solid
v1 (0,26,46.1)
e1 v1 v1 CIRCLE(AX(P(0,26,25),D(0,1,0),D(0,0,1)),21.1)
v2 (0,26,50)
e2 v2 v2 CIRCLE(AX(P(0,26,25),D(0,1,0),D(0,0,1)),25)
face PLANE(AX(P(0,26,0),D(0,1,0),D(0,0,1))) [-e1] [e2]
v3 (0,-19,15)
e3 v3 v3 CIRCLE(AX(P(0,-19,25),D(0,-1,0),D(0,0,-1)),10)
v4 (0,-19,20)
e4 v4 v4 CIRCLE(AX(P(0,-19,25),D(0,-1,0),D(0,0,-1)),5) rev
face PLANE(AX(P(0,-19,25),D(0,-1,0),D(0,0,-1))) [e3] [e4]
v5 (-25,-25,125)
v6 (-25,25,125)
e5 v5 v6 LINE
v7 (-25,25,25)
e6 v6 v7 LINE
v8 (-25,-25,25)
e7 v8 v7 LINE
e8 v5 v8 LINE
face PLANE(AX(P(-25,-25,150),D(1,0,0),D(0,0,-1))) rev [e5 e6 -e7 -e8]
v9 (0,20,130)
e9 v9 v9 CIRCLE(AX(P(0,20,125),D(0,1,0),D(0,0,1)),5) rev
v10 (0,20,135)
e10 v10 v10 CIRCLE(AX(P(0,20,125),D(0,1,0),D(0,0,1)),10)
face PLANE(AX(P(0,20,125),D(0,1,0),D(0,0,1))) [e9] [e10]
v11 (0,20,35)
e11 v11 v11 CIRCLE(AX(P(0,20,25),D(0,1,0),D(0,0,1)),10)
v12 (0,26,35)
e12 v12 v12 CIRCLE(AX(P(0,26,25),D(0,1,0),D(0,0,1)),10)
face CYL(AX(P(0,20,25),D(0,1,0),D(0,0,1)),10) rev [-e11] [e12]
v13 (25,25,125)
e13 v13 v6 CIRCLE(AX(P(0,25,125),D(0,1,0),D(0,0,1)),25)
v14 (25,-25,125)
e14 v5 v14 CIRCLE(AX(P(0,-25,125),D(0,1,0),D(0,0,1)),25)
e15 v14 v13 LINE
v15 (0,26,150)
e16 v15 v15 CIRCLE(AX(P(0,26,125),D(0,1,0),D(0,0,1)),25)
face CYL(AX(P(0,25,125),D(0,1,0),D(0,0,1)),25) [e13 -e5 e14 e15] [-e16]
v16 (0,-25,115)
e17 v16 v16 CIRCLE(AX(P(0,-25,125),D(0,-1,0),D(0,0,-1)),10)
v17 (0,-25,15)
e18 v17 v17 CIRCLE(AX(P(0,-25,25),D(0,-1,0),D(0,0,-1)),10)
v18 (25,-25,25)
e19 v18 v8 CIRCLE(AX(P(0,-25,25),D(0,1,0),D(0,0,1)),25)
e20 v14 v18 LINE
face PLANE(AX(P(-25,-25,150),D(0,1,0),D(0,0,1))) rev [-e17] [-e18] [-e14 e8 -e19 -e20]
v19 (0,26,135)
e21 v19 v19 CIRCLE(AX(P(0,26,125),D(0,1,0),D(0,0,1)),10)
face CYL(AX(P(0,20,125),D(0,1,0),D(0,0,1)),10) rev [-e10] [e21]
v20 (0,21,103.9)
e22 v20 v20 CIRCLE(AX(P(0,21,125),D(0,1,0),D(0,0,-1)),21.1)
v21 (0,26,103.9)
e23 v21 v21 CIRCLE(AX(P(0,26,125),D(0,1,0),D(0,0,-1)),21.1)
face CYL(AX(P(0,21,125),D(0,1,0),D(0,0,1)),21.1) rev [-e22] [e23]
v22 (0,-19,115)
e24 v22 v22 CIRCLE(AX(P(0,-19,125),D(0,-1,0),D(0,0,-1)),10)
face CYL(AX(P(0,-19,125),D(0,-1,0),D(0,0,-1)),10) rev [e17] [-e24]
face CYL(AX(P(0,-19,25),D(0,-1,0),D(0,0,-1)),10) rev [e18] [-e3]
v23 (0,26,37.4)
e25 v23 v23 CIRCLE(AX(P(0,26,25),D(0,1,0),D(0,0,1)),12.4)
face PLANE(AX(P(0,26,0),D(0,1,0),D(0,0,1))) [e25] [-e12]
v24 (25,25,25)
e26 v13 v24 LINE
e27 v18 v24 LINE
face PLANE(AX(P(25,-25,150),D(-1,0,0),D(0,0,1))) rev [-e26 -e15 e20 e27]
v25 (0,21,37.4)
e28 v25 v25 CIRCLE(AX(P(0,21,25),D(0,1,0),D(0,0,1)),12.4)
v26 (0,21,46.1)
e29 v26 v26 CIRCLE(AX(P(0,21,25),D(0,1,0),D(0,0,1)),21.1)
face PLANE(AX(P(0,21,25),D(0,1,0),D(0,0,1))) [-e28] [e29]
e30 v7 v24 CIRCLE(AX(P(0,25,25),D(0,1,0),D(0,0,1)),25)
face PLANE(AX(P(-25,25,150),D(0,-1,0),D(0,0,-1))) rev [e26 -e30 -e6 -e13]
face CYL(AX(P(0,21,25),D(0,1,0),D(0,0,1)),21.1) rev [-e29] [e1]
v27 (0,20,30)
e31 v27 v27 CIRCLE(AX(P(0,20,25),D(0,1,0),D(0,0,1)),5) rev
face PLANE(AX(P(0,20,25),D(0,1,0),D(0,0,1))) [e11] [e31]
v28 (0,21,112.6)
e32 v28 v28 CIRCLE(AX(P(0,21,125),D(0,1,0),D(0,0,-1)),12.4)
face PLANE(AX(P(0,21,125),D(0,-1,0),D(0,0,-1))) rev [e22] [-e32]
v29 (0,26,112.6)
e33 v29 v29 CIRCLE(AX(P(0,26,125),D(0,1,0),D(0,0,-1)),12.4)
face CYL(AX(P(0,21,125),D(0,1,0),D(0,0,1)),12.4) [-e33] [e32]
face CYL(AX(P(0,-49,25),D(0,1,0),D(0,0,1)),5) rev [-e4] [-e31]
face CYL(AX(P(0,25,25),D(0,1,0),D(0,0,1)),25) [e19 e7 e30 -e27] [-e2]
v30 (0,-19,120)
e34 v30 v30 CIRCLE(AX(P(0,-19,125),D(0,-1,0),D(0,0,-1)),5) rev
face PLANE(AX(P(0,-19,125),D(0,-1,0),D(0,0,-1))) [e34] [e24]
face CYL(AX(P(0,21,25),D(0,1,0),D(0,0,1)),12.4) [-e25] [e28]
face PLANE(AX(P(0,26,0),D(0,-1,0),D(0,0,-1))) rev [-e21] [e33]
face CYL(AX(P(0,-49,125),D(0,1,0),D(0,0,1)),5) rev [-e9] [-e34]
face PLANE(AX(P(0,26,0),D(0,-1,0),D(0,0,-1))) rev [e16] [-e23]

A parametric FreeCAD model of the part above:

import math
import FreeCAD as App
import Part
import Sketcher
from FreeCAD import Vector
Q = App.Units.Quantity


def add_polygon(sketch, points):
    """Adds a closed chain of lines whose ends are joined by coincident constraints."""
    first, n = sketch.GeometryCount, len(points)
    for a, b in zip(points, points[1:] + points[:1]):
        sketch.addGeometry(Part.LineSegment(App.Vector(*a, 0), App.Vector(*b, 0)), False)
    for i in range(n):
        sketch.addConstraint(Sketcher.Constraint("Coincident", first + i, 2, first + (i + 1) % n, 1))

doc = App.newDocument("Part")
body = doc.addObject("PartDesign::Body", "Body")

sketch1 = body.newObject("Sketcher::SketchObject", "Sketch")
sketch1.AttachmentSupport = (doc.getObject("XY_Plane"), [""])
sketch1.MapMode = "FlatFace"
add_polygon(sketch1, [(-25, 25), (-25, -25), (25, -25), (25, 25)])
sketch1.addConstraint(Sketcher.Constraint("Vertical", 0))
sketch1.addConstraint(Sketcher.Constraint("Horizontal", 1))
sketch1.addConstraint(Sketcher.Constraint("Vertical", 2))
sketch1.addConstraint(Sketcher.Constraint("Horizontal", 3))
sketch1.addConstraint(Sketcher.Constraint("Symmetric", 0, 2, 2, 2, -1, 1))
sketch1.addConstraint(Sketcher.Constraint("Equal", 3, 0))
sketch1.addConstraint(Sketcher.Constraint("DistanceX", 1, 1, 1, 2, Q("50 mm")))
pad1 = body.newObject("PartDesign::Pad", "Pad")
pad1.Profile = sketch1
pad1.Length = 150

sketch2 = body.newObject("Sketcher::SketchObject", "Sketch001")
sketch2.AttachmentSupport = (doc.getObject("XZ_Plane"), [""])
sketch2.MapMode = "FlatFace"
sketch2.AttachmentOffset = App.Placement(Vector(0, 0, -25), App.Rotation())
add_polygon(sketch2, [(-25, 100), (-25, 150), (25, 150), (25, 100)])
add_polygon(sketch2, [(-25, 0), (-25, 50), (25, 50), (25, 0)])
sketch2.addConstraint(Sketcher.Constraint("Vertical", 0))
sketch2.addConstraint(Sketcher.Constraint("Horizontal", 1))
sketch2.addConstraint(Sketcher.Constraint("Vertical", 2))
sketch2.addConstraint(Sketcher.Constraint("Horizontal", 3))
sketch2.addConstraint(Sketcher.Constraint("Vertical", 4))
sketch2.addConstraint(Sketcher.Constraint("Horizontal", 5))
sketch2.addConstraint(Sketcher.Constraint("Vertical", 6))
sketch2.addConstraint(Sketcher.Constraint("Horizontal", 7))
sketch2.addConstraint(Sketcher.Constraint("Symmetric", 6, 2, 7, 2, -1, 1))
sketch2.addConstraint(Sketcher.Constraint("Vertical", 3, 2, 4, 2))
sketch2.addConstraint(Sketcher.Constraint("Vertical", 2, 2, 5, 2))
sketch2.addConstraint(Sketcher.Constraint("Equal", 7, 0))
sketch2.addConstraint(Sketcher.Constraint("Equal", 2, 4))
sketch2.addConstraint(Sketcher.Constraint("DistanceX", 1, 1, 1, 2, Q("50 mm")))
sketch2.addConstraint(Sketcher.Constraint("DistanceY", -1, 1, 0, 2, Q("150 mm")))
pad2 = body.newObject("PartDesign::Pad", "Pad001")
pad2.Profile = sketch2
pad2.Length = 1
pad2.Reversed = True

sketch3 = body.newObject("Sketcher::SketchObject", "Sketch002")
sketch3.AttachmentSupport = (doc.getObject("XZ_Plane"), [""])
sketch3.MapMode = "FlatFace"
sketch3.AttachmentOffset = App.Placement(Vector(0, 0, -26), App.Rotation())
sketch3.addGeometry(Part.LineSegment(Vector(0, 0, 0), Vector(-25, 0, 0)), False)
sketch3.addGeometry(Part.LineSegment(Vector(-25, 0, 0), Vector(-25, 25, 0)), False)
sketch3.addGeometry(Part.ArcOfCircle(Part.Circle(Vector(0, 25, 0), Vector(0, 0, 1), 25), math.radians(180), math.radians(270)), False)
sketch3.addGeometry(Part.LineSegment(Vector(25, 0, 0), Vector(0, 0, 0)), False)
sketch3.addGeometry(Part.ArcOfCircle(Part.Circle(Vector(0, 25, 0), Vector(0, 0, 1), 25), math.radians(-90), math.radians(0)), False)
sketch3.addGeometry(Part.LineSegment(Vector(25, 25, 0), Vector(25, 0, 0)), False)
sketch3.addGeometry(Part.LineSegment(Vector(25, 150, 0), Vector(25, 125, 0)), False)
sketch3.addGeometry(Part.ArcOfCircle(Part.Circle(Vector(0, 125, 0), Vector(0, 0, 1), 25), math.radians(0), math.radians(90)), False)
sketch3.addGeometry(Part.LineSegment(Vector(0, 150, 0), Vector(25, 150, 0)), False)
sketch3.addGeometry(Part.ArcOfCircle(Part.Circle(Vector(0, 125, 0), Vector(0, 0, 1), 25), math.radians(90), math.radians(180)), False)
sketch3.addGeometry(Part.LineSegment(Vector(-25, 125, 0), Vector(-25, 150, 0)), False)
sketch3.addGeometry(Part.LineSegment(Vector(-25, 150, 0), Vector(0, 150, 0)), False)
sketch3.addGeometry(Part.LineSegment(Vector(0, 100, 0), Vector(-25, 100, 0)), False)
sketch3.addGeometry(Part.LineSegment(Vector(-25, 100, 0), Vector(-25, 125, 0)), False)
sketch3.addGeometry(Part.ArcOfCircle(Part.Circle(Vector(0, 125, 0), Vector(0, 0, 1), 25), math.radians(-180), math.radians(-90)), False)
sketch3.addGeometry(Part.LineSegment(Vector(25, 100, 0), Vector(0, 100, 0)), False)
sketch3.addGeometry(Part.ArcOfCircle(Part.Circle(Vector(0, 125, 0), Vector(0, 0, 1), 25), math.radians(-90), math.radians(0)), False)
sketch3.addGeometry(Part.LineSegment(Vector(25, 125, 0), Vector(25, 100, 0)), False)
sketch3.addGeometry(Part.ArcOfCircle(Part.Circle(Vector(0, 25, 0), Vector(0, 0, 1), 25), math.radians(90), math.radians(180)), False)
sketch3.addGeometry(Part.LineSegment(Vector(-25, 25, 0), Vector(-25, 50, 0)), False)
sketch3.addGeometry(Part.LineSegment(Vector(-25, 50, 0), Vector(0, 50, 0)), False)
sketch3.addGeometry(Part.LineSegment(Vector(25, 50, 0), Vector(25, 25, 0)), False)
sketch3.addGeometry(Part.ArcOfCircle(Part.Circle(Vector(0, 25, 0), Vector(0, 0, 1), 25), math.radians(0), math.radians(90)), False)
sketch3.addGeometry(Part.LineSegment(Vector(0, 50, 0), Vector(25, 50, 0)), False)
sketch3.addConstraint(Sketcher.Constraint("Coincident", 0, 2, 1, 1))
sketch3.addConstraint(Sketcher.Constraint("Tangent", 1, 2, 2, 1))
sketch3.addConstraint(Sketcher.Constraint("Tangent", 2, 2, 0, 1))
sketch3.addConstraint(Sketcher.Constraint("Tangent", 3, 2, 4, 1))
sketch3.addConstraint(Sketcher.Constraint("Tangent", 4, 2, 5, 1))
sketch3.addConstraint(Sketcher.Constraint("Coincident", 5, 2, 3, 1))
sketch3.addConstraint(Sketcher.Constraint("Tangent", 6, 2, 7, 1))
sketch3.addConstraint(Sketcher.Constraint("Tangent", 7, 2, 8, 1))
sketch3.addConstraint(Sketcher.Constraint("Coincident", 8, 2, 6, 1))
sketch3.addConstraint(Sketcher.Constraint("Tangent", 9, 2, 10, 1))
sketch3.addConstraint(Sketcher.Constraint("Coincident", 10, 2, 11, 1))
sketch3.addConstraint(Sketcher.Constraint("Tangent", 11, 2, 9, 1))
sketch3.addConstraint(Sketcher.Constraint("Coincident", 12, 2, 13, 1))
sketch3.addConstraint(Sketcher.Constraint("Tangent", 13, 2, 14, 1))
sketch3.addConstraint(Sketcher.Constraint("Tangent", 14, 2, 12, 1))
sketch3.addConstraint(Sketcher.Constraint("Tangent", 15, 2, 16, 1))
sketch3.addConstraint(Sketcher.Constraint("Tangent", 16, 2, 17, 1))
sketch3.addConstraint(Sketcher.Constraint("Coincident", 17, 2, 15, 1))
sketch3.addConstraint(Sketcher.Constraint("Tangent", 18, 2, 19, 1))
sketch3.addConstraint(Sketcher.Constraint("Coincident", 19, 2, 20, 1))
sketch3.addConstraint(Sketcher.Constraint("Tangent", 20, 2, 18, 1))
sketch3.addConstraint(Sketcher.Constraint("Tangent", 21, 2, 22, 1))
sketch3.addConstraint(Sketcher.Constraint("Tangent", 22, 2, 23, 1))
sketch3.addConstraint(Sketcher.Constraint("Coincident", 23, 2, 21, 1))
sketch3.addConstraint(Sketcher.Constraint("Horizontal", 0))
sketch3.addConstraint(Sketcher.Constraint("Vertical", 1))
sketch3.addConstraint(Sketcher.Constraint("Horizontal", 3))
sketch3.addConstraint(Sketcher.Constraint("Vertical", 5))
sketch3.addConstraint(Sketcher.Constraint("Vertical", 6))
sketch3.addConstraint(Sketcher.Constraint("Horizontal", 8))
sketch3.addConstraint(Sketcher.Constraint("Vertical", 10))
sketch3.addConstraint(Sketcher.Constraint("Horizontal", 11))
sketch3.addConstraint(Sketcher.Constraint("Horizontal", 12))
sketch3.addConstraint(Sketcher.Constraint("Vertical", 13))
sketch3.addConstraint(Sketcher.Constraint("Horizontal", 15))
sketch3.addConstraint(Sketcher.Constraint("Vertical", 17))
sketch3.addConstraint(Sketcher.Constraint("Vertical", 19))
sketch3.addConstraint(Sketcher.Constraint("Horizontal", 20))
sketch3.addConstraint(Sketcher.Constraint("Vertical", 21))
sketch3.addConstraint(Sketcher.Constraint("Horizontal", 23))
sketch3.addConstraint(Sketcher.Constraint("Coincident", 2, 2, -1, 1))
sketch3.addConstraint(Sketcher.Constraint("Coincident", 3, 2, -1, 1))
sketch3.addConstraint(Sketcher.Constraint("Coincident", 9, 3, 7, 3))
sketch3.addConstraint(Sketcher.Constraint("Coincident", 14, 3, 7, 3))
sketch3.addConstraint(Sketcher.Constraint("Coincident", 16, 3, 7, 3))
sketch3.addConstraint(Sketcher.Constraint("Coincident", 18, 3, 2, 3))
sketch3.addConstraint(Sketcher.Constraint("Coincident", 22, 3, 2, 3))
sketch3.addConstraint(Sketcher.Constraint("Coincident", 21, 2, 4, 2))
sketch3.addConstraint(Sketcher.Constraint("Equal", 4, 7))
sketch3.addConstraint(Sketcher.Constraint("Equal", 7, 9))
sketch3.addConstraint(Sketcher.Constraint("Equal", 9, 14))
sketch3.addConstraint(Sketcher.Constraint("Equal", 14, 16))
sketch3.addConstraint(Sketcher.Constraint("Equal", 16, 18))
sketch3.addConstraint(Sketcher.Constraint("PointOnObject", 7, 3, -2))
sketch3.addConstraint(Sketcher.Constraint("Radius", 2, Q("25 mm")))
sketch3.addConstraint(Sketcher.Constraint("DistanceY", -1, 1, 7, 3, Q("125 mm")))
pocket1 = body.newObject("PartDesign::Pocket", "Pocket")
pocket1.Profile = sketch3
pocket1.Length = 1
pocket1.Reversed = True

sketch4 = body.newObject("Sketcher::SketchObject", "Sketch003")
sketch4.AttachmentSupport = (doc.getObject("XZ_Plane"), [""])
sketch4.MapMode = "FlatFace"
sketch4.AttachmentOffset = App.Placement(Vector(0, 0, -25), App.Rotation())
sketch4.addGeometry(Part.LineSegment(Vector(25, 150, 0), Vector(25, 125, 0)), False)
sketch4.addGeometry(Part.ArcOfCircle(Part.Circle(Vector(0, 125, 0), Vector(0, 0, 1), 25), math.radians(0), math.radians(90)), False)
sketch4.addGeometry(Part.LineSegment(Vector(0, 150, 0), Vector(25, 150, 0)), False)
sketch4.addGeometry(Part.LineSegment(Vector(-25, 0, 0), Vector(-25, 25, 0)), False)
sketch4.addGeometry(Part.ArcOfCircle(Part.Circle(Vector(0, 25, 0), Vector(0, 0, 1), 25), math.radians(-180), math.radians(-90)), False)
sketch4.addGeometry(Part.LineSegment(Vector(0, 0, 0), Vector(-25, 0, 0)), False)
sketch4.addGeometry(Part.ArcOfCircle(Part.Circle(Vector(0, 25, 0), Vector(0, 0, 1), 25), math.radians(-90), math.radians(0)), False)
sketch4.addGeometry(Part.LineSegment(Vector(25, 25, 0), Vector(25, 0, 0)), False)
sketch4.addGeometry(Part.LineSegment(Vector(25, 0, 0), Vector(0, 0, 0)), False)
sketch4.addGeometry(Part.ArcOfCircle(Part.Circle(Vector(0, 125, 0), Vector(0, 0, 1), 25), math.radians(90), math.radians(180)), False)
sketch4.addGeometry(Part.LineSegment(Vector(-25, 125, 0), Vector(-25, 150, 0)), False)
sketch4.addGeometry(Part.LineSegment(Vector(-25, 150, 0), Vector(0, 150, 0)), False)
sketch4.addConstraint(Sketcher.Constraint("Tangent", 0, 2, 1, 1))
sketch4.addConstraint(Sketcher.Constraint("Tangent", 1, 2, 2, 1))
sketch4.addConstraint(Sketcher.Constraint("Coincident", 2, 2, 0, 1))
sketch4.addConstraint(Sketcher.Constraint("Tangent", 3, 2, 4, 1))
sketch4.addConstraint(Sketcher.Constraint("Tangent", 4, 2, 5, 1))
sketch4.addConstraint(Sketcher.Constraint("Coincident", 5, 2, 3, 1))
sketch4.addConstraint(Sketcher.Constraint("Tangent", 6, 2, 7, 1))
sketch4.addConstraint(Sketcher.Constraint("Coincident", 7, 2, 8, 1))
sketch4.addConstraint(Sketcher.Constraint("Tangent", 8, 2, 6, 1))
sketch4.addConstraint(Sketcher.Constraint("Tangent", 9, 2, 10, 1))
sketch4.addConstraint(Sketcher.Constraint("Coincident", 10, 2, 11, 1))
sketch4.addConstraint(Sketcher.Constraint("Tangent", 11, 2, 9, 1))
sketch4.addConstraint(Sketcher.Constraint("Vertical", 0))
sketch4.addConstraint(Sketcher.Constraint("Horizontal", 2))
sketch4.addConstraint(Sketcher.Constraint("Vertical", 3))
sketch4.addConstraint(Sketcher.Constraint("Horizontal", 5))
sketch4.addConstraint(Sketcher.Constraint("Vertical", 7))
sketch4.addConstraint(Sketcher.Constraint("Horizontal", 8))
sketch4.addConstraint(Sketcher.Constraint("Vertical", 10))
sketch4.addConstraint(Sketcher.Constraint("Horizontal", 11))
sketch4.addConstraint(Sketcher.Constraint("Coincident", 4, 2, -1, 1))
sketch4.addConstraint(Sketcher.Constraint("Coincident", 8, 2, -1, 1))
sketch4.addConstraint(Sketcher.Constraint("Coincident", 9, 3, 1, 3))
sketch4.addConstraint(Sketcher.Constraint("Equal", 1, 4))
sketch4.addConstraint(Sketcher.Constraint("Equal", 4, 6))
sketch4.addConstraint(Sketcher.Constraint("Equal", 6, 9))
sketch4.addConstraint(Sketcher.Constraint("PointOnObject", 1, 3, -2))
sketch4.addConstraint(Sketcher.Constraint("Radius", 1, Q("25 mm")))
sketch4.addConstraint(Sketcher.Constraint("DistanceY", -1, 1, 1, 3, Q("125 mm")))
pocket2 = body.newObject("PartDesign::Pocket", "Pocket001")
pocket2.Profile = sketch4
pocket2.Length = 50
pocket2.Reversed = True

sketch5 = body.newObject("Sketcher::SketchObject", "Sketch004")
sketch5.AttachmentSupport = (doc.getObject("XZ_Plane"), [""])
sketch5.MapMode = "FlatFace"
sketch5.AttachmentOffset = App.Placement(Vector(0, 0, -26), App.Rotation())
sketch5.addGeometry(Part.Circle(Vector(0, 25, 0), Vector(0, 0, 1), 5), False)
sketch5.addGeometry(Part.Circle(Vector(0, 125, 0), Vector(0, 0, 1), 5), False)
sketch5.addConstraint(Sketcher.Constraint("Equal", 0, 1))
sketch5.addConstraint(Sketcher.Constraint("PointOnObject", 0, 3, -2))
sketch5.addConstraint(Sketcher.Constraint("PointOnObject", 1, 3, -2))
sketch5.addConstraint(Sketcher.Constraint("Diameter", 0, Q("10 mm")))
sketch5.addConstraint(Sketcher.Constraint("DistanceY", -1, 1, 0, 3, Q("25 mm")))
sketch5.addConstraint(Sketcher.Constraint("DistanceY", -1, 1, 1, 3, Q("125 mm")))
pocket3 = body.newObject("PartDesign::Pocket", "Pocket002")
pocket3.Profile = sketch5
pocket3.Length = 75
pocket3.Reversed = True

sketch6 = body.newObject("Sketcher::SketchObject", "Sketch005")
sketch6.AttachmentSupport = (doc.getObject("XZ_Plane"), [""])
sketch6.MapMode = "FlatFace"
sketch6.AttachmentOffset = App.Placement(Vector(0, 0, -26), App.Rotation())
sketch6.addGeometry(Part.Circle(Vector(0, 125, 0), Vector(0, 0, 1), 10), False)
sketch6.addGeometry(Part.Circle(Vector(0, 25, 0), Vector(0, 0, 1), 10), False)
sketch6.addConstraint(Sketcher.Constraint("Equal", 0, 1))
sketch6.addConstraint(Sketcher.Constraint("PointOnObject", 0, 3, -2))
sketch6.addConstraint(Sketcher.Constraint("PointOnObject", 1, 3, -2))
sketch6.addConstraint(Sketcher.Constraint("Diameter", 0, Q("20 mm")))
sketch6.addConstraint(Sketcher.Constraint("DistanceY", -1, 1, 0, 3, Q("125 mm")))
sketch6.addConstraint(Sketcher.Constraint("DistanceY", -1, 1, 1, 3, Q("25 mm")))
pocket4 = body.newObject("PartDesign::Pocket", "Pocket003")
pocket4.Profile = sketch6
pocket4.Length = 6
pocket4.Reversed = True

sketch7 = body.newObject("Sketcher::SketchObject", "Sketch006")
sketch7.AttachmentSupport = (doc.getObject("XZ_Plane"), [""])
sketch7.MapMode = "FlatFace"
sketch7.AttachmentOffset = App.Placement(Vector(0, 0, 19), App.Rotation())
sketch7.addGeometry(Part.Circle(Vector(0, 125, 0), Vector(0, 0, 1), 10), False)
sketch7.addGeometry(Part.Circle(Vector(0, 25, 0), Vector(0, 0, 1), 10), False)
sketch7.addConstraint(Sketcher.Constraint("Equal", 0, 1))
sketch7.addConstraint(Sketcher.Constraint("PointOnObject", 0, 3, -2))
sketch7.addConstraint(Sketcher.Constraint("PointOnObject", 1, 3, -2))
sketch7.addConstraint(Sketcher.Constraint("Diameter", 0, Q("20 mm")))
sketch7.addConstraint(Sketcher.Constraint("DistanceY", -1, 1, 0, 3, Q("125 mm")))
sketch7.addConstraint(Sketcher.Constraint("DistanceY", -1, 1, 1, 3, Q("25 mm")))
pocket5 = body.newObject("PartDesign::Pocket", "Pocket004")
pocket5.Profile = sketch7
pocket5.Length = 6
pocket5.Reversed = True

sketch8 = body.newObject("Sketcher::SketchObject", "Sketch007")
sketch8.AttachmentSupport = (doc.getObject("XZ_Plane"), [""])
sketch8.MapMode = "FlatFace"
sketch8.AttachmentOffset = App.Placement(Vector(0, 0, -26), App.Rotation())
sketch8.addGeometry(Part.Circle(Vector(0, 25, 0), Vector(0, 0, 1), 21.1), False)
sketch8.addGeometry(Part.Circle(Vector(0, 25, 0), Vector(0, 0, 1), 12.4), False)
sketch8.addGeometry(Part.Circle(Vector(0, 125, 0), Vector(0, 0, 1), 21.1), False)
sketch8.addGeometry(Part.Circle(Vector(0, 125, 0), Vector(0, 0, 1), 12.4), False)
sketch8.addConstraint(Sketcher.Constraint("Coincident", 1, 3, 0, 3))
sketch8.addConstraint(Sketcher.Constraint("Coincident", 3, 3, 2, 3))
sketch8.addConstraint(Sketcher.Constraint("Equal", 0, 2))
sketch8.addConstraint(Sketcher.Constraint("Equal", 1, 3))
sketch8.addConstraint(Sketcher.Constraint("PointOnObject", 0, 3, -2))
sketch8.addConstraint(Sketcher.Constraint("PointOnObject", 2, 3, -2))
sketch8.addConstraint(Sketcher.Constraint("Diameter", 0, Q("42.2 mm")))
sketch8.addConstraint(Sketcher.Constraint("Diameter", 1, Q("24.8 mm")))
sketch8.addConstraint(Sketcher.Constraint("DistanceY", -1, 1, 0, 3, Q("25 mm")))
sketch8.addConstraint(Sketcher.Constraint("DistanceY", -1, 1, 2, 3, Q("125 mm")))
pocket6 = body.newObject("PartDesign::Pocket", "Pocket005")
pocket6.Profile = sketch8
pocket6.Length = 5
pocket6.Reversed = True

doc.recompute()
